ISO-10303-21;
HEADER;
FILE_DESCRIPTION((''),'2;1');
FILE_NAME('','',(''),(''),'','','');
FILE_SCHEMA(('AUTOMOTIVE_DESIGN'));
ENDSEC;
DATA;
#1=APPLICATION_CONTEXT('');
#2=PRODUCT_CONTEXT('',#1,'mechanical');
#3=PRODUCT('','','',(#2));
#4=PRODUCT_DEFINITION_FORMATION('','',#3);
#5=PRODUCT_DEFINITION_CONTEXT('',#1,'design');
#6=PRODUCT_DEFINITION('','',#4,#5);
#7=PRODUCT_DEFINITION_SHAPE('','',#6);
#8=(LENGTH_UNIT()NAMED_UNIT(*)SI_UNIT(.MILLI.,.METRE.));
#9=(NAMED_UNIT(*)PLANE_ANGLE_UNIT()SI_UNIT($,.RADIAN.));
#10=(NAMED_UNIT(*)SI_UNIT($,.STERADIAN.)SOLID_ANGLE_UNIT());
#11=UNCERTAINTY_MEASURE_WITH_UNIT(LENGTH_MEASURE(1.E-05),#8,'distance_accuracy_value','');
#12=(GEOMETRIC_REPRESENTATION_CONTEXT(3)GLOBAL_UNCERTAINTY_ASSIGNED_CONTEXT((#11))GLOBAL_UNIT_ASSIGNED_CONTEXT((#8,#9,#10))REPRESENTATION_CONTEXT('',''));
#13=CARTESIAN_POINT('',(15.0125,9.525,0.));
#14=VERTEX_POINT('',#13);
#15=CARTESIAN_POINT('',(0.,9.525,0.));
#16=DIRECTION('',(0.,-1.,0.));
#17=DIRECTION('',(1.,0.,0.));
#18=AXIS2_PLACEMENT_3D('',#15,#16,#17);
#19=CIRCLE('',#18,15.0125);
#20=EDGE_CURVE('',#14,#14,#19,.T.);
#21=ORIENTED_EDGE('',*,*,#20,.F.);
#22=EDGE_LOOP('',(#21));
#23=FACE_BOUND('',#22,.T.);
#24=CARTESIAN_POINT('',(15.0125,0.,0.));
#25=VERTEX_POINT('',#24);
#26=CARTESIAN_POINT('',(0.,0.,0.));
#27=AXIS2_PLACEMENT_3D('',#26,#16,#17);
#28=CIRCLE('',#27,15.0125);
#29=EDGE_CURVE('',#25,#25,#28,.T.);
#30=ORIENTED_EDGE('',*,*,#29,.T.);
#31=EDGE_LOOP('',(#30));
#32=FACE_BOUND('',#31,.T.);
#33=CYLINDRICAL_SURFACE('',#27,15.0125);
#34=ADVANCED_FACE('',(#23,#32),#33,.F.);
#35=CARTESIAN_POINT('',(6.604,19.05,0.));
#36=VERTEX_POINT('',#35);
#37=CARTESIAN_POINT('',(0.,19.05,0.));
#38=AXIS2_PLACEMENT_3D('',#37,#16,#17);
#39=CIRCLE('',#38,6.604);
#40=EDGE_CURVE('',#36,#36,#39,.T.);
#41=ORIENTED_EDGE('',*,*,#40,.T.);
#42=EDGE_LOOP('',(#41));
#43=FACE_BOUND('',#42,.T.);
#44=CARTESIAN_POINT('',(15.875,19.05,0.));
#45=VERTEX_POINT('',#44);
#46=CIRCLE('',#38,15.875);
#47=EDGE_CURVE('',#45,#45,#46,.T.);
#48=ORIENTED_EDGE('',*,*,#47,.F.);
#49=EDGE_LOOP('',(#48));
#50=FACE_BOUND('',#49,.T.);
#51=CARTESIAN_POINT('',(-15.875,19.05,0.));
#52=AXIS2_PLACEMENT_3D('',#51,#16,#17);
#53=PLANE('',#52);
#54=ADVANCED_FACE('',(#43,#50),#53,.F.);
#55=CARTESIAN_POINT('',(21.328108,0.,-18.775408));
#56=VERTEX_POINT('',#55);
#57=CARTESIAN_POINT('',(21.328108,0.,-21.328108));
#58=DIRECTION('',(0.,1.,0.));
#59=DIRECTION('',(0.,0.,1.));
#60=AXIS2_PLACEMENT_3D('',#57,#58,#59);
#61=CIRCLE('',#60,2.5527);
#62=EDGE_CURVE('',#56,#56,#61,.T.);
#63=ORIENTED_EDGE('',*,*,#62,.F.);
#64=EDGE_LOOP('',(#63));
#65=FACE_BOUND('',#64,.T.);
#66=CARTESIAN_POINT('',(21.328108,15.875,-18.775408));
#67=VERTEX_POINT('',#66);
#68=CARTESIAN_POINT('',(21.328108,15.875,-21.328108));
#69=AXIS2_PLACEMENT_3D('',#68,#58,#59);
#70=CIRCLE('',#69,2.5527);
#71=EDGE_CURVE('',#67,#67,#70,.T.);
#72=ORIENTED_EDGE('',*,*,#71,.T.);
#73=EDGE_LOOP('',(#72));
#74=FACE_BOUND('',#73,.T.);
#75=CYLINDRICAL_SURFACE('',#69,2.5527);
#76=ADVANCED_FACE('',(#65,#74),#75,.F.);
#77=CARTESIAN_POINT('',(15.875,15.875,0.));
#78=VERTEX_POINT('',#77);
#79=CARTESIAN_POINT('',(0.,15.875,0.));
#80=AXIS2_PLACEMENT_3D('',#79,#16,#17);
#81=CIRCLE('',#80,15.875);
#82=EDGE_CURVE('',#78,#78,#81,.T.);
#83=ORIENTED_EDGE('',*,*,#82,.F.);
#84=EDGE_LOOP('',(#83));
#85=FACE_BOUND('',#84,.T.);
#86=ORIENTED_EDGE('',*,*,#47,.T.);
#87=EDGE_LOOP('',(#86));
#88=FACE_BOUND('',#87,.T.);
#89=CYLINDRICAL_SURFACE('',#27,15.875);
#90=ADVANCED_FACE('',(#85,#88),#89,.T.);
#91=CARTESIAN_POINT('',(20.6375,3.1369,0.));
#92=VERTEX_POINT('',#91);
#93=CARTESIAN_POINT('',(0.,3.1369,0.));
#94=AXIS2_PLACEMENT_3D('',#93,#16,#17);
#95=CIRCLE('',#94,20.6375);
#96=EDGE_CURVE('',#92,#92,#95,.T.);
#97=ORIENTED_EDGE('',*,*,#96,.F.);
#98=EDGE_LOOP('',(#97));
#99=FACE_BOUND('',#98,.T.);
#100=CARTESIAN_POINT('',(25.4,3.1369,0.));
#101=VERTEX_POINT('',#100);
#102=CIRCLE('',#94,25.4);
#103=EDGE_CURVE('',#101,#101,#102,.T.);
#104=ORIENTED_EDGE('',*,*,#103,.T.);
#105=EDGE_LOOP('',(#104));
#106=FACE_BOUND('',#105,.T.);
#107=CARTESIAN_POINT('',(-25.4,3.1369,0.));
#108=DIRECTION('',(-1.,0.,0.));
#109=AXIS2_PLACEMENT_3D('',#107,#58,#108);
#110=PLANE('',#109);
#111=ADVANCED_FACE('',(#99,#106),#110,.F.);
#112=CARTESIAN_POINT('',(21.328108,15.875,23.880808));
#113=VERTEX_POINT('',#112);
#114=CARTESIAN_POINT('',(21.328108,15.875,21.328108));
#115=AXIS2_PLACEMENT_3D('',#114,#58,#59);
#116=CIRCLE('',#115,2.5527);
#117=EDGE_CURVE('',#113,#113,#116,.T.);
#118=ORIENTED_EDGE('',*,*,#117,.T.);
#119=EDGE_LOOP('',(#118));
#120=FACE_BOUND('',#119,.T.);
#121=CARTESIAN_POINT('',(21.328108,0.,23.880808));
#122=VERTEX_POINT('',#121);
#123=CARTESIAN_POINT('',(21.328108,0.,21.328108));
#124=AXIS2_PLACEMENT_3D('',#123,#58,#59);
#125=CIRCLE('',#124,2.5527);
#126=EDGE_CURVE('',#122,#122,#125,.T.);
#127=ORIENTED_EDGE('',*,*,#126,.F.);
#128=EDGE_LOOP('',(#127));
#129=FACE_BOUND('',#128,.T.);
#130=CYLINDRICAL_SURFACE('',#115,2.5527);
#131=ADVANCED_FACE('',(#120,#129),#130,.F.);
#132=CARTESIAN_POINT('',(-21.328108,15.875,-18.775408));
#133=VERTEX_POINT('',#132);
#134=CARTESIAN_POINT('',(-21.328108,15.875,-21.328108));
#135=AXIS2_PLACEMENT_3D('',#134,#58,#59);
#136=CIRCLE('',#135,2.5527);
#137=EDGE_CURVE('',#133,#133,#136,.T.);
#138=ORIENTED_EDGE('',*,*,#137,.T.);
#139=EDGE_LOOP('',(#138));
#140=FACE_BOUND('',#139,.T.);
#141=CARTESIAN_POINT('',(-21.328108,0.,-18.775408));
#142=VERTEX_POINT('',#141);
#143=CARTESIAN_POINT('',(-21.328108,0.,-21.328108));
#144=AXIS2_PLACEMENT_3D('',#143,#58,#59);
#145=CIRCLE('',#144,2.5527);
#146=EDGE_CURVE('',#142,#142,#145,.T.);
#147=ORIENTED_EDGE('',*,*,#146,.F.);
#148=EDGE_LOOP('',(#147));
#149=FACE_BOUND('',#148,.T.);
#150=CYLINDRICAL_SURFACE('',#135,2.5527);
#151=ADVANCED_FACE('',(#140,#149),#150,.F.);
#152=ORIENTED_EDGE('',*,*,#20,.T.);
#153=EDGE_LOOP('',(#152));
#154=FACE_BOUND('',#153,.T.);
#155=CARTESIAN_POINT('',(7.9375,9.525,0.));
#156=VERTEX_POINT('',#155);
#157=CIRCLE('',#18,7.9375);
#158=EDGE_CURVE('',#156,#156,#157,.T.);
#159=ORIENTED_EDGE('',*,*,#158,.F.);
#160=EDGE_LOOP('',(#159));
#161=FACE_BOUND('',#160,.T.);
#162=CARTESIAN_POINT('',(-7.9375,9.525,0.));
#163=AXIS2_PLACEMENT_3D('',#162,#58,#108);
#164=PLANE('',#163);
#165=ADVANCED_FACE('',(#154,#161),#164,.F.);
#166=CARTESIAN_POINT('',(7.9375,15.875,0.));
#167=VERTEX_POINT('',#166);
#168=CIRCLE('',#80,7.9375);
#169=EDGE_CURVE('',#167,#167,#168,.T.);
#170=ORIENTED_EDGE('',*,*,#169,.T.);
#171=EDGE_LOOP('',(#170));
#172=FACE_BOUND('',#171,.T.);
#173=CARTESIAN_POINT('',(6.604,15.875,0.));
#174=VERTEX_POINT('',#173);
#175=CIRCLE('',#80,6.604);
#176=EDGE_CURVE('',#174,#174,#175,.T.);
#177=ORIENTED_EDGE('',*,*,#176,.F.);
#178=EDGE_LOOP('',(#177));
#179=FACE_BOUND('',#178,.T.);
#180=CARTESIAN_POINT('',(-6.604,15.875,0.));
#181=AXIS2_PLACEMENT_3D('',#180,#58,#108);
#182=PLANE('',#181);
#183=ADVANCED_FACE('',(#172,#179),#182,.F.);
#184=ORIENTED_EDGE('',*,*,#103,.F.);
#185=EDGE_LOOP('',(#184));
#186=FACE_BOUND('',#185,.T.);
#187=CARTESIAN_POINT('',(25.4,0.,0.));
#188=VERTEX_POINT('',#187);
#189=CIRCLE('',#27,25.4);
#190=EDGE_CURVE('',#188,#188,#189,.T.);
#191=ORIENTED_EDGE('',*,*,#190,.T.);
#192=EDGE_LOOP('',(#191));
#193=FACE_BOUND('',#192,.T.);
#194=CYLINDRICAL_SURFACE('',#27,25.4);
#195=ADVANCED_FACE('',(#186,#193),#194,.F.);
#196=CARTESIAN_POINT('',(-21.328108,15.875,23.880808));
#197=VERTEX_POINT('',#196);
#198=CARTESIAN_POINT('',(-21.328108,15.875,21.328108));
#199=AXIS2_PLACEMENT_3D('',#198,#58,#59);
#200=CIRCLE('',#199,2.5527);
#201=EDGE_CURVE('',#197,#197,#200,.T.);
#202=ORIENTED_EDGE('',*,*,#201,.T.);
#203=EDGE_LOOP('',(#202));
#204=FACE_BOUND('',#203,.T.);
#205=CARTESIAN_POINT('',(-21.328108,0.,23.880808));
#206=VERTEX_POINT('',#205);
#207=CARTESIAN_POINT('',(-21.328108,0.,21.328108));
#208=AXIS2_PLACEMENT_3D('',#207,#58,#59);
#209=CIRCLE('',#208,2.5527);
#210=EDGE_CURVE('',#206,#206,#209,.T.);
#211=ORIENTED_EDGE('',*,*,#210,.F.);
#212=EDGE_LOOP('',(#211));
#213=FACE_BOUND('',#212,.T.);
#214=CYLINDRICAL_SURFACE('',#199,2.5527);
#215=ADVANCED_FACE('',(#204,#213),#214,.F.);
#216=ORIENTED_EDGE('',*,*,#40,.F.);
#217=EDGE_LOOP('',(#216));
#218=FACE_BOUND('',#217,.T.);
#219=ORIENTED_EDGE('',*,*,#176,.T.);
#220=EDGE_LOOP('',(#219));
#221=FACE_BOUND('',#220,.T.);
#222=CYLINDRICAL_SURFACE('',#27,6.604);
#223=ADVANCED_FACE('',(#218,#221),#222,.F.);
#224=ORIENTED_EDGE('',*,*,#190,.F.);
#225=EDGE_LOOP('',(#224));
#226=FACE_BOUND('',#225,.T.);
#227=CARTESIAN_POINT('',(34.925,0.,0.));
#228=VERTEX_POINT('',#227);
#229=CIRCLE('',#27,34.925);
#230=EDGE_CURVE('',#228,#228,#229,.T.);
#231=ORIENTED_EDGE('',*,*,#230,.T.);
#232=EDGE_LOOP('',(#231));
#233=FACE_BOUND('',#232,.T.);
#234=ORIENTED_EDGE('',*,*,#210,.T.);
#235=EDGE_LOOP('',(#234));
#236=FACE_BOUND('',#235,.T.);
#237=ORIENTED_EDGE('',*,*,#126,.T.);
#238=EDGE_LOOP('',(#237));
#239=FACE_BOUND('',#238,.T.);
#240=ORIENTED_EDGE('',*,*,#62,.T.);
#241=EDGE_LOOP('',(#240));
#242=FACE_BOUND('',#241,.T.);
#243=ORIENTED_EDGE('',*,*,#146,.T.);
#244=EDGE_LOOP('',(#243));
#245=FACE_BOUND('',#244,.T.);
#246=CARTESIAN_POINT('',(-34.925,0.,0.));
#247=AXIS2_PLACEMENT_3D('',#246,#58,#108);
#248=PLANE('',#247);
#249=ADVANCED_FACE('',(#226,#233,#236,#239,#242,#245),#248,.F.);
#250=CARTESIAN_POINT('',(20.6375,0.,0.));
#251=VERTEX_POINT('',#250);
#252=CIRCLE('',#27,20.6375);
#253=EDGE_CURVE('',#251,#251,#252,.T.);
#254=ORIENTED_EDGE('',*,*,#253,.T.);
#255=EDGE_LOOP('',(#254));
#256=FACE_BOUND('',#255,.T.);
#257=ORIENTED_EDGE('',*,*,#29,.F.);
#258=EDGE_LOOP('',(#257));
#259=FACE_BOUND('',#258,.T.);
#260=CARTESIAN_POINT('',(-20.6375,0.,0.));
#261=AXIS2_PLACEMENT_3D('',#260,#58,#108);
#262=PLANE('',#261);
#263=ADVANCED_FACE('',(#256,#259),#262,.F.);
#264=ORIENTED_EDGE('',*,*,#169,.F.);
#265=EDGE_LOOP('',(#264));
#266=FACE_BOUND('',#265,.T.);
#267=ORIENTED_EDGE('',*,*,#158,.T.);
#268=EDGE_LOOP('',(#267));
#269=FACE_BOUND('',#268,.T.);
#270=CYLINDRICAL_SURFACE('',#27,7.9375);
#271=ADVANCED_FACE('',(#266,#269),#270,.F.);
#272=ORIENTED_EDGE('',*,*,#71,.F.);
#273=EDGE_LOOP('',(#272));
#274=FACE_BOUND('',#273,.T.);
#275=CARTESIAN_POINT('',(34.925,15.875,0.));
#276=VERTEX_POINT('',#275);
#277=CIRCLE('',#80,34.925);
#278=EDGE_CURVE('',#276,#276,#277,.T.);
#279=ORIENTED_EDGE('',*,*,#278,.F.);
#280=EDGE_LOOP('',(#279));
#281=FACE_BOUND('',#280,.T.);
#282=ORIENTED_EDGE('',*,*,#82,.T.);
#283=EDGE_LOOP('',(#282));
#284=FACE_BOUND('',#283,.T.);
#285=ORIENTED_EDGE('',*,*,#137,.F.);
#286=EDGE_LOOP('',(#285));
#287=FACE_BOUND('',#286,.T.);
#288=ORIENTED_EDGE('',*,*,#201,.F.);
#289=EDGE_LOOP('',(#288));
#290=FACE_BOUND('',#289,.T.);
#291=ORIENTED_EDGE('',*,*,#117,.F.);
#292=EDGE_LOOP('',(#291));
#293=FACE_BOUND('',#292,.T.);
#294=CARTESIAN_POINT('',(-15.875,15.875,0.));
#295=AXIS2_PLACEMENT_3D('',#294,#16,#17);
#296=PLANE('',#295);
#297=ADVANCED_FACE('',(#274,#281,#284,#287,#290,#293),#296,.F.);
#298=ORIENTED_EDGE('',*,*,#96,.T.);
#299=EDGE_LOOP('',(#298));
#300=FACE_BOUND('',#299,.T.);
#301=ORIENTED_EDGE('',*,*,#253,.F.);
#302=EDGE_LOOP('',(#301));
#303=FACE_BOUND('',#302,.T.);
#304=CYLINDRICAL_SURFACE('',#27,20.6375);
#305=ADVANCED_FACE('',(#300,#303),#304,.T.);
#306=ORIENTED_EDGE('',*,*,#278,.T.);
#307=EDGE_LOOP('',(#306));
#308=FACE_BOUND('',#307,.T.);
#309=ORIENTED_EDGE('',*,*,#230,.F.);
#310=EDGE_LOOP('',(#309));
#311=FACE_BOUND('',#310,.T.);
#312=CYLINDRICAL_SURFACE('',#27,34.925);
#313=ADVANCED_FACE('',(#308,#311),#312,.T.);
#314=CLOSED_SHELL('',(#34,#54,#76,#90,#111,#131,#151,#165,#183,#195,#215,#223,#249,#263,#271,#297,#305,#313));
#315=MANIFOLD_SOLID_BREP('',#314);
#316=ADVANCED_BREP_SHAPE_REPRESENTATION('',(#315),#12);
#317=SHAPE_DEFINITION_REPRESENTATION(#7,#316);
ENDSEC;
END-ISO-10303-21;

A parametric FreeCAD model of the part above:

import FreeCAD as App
import Part
import Sketcher
Q = App.Units.Quantity

doc = App.newDocument("Part")
body = doc.addObject("PartDesign::Body", "Body")

sketch1 = body.newObject("Sketcher::SketchObject", "Sketch")
sketch1.AttachmentSupport = (doc.getObject("XY_Plane"), [""])
sketch1.MapMode = "FlatFace"
sketch1.addGeometry(Part.LineSegment(App.Vector(-6.6, 19.1, 0), App.Vector(-15.9, 19.1, 0)), False)
sketch1.addGeometry(Part.LineSegment(App.Vector(-15.9, 19.1, 0), App.Vector(-15.9, 15.9, 0)), False)
sketch1.addGeometry(Part.LineSegment(App.Vector(-15.9, 15.9, 0), App.Vector(-34.9, 15.9, 0)), False)
sketch1.addGeometry(Part.LineSegment(App.Vector(-34.9, 15.9, 0), App.Vector(-34.9, 0, 0)), False)
sketch1.addGeometry(Part.LineSegment(App.Vector(-34.9, 0, 0), App.Vector(-25.4, 0, 0)), False)
sketch1.addGeometry(Part.LineSegment(App.Vector(-25.4, 0, 0), App.Vector(-25.4, 3.1, 0)), False)
sketch1.addGeometry(Part.LineSegment(App.Vector(-25.4, 3.1, 0), App.Vector(-20.6, 3.1, 0)), False)
sketch1.addGeometry(Part.LineSegment(App.Vector(-20.6, 3.1, 0), App.Vector(-20.6, 0, 0)), False)
sketch1.addGeometry(Part.LineSegment(App.Vector(-20.6, 0, 0), App.Vector(-15, 0, 0)), False)
sketch1.addGeometry(Part.LineSegment(App.Vector(-15, 0, 0), App.Vector(-15, 9.5, 0)), False)
sketch1.addGeometry(Part.LineSegment(App.Vector(-15, 9.5, 0), App.Vector(-7.9, 9.5, 0)), False)
sketch1.addGeometry(Part.LineSegment(App.Vector(-7.9, 9.5, 0), App.Vector(-7.9, 15.9, 0)), False)
sketch1.addGeometry(Part.LineSegment(App.Vector(-7.9, 15.9, 0), App.Vector(-6.6, 15.9, 0)), False)
sketch1.addGeometry(Part.LineSegment(App.Vector(-6.6, 15.9, 0), App.Vector(-6.6, 19.1, 0)), False)
sketch1.addConstraint(Sketcher.Constraint("Coincident", 0, 2, 1, 1))
sketch1.addConstraint(Sketcher.Constraint("Coincident", 1, 2, 2, 1))
sketch1.addConstraint(Sketcher.Constraint("Coincident", 2, 2, 3, 1))
sketch1.addConstraint(Sketcher.Constraint("Coincident", 3, 2, 4, 1))
sketch1.addConstraint(Sketcher.Constraint("Coincident", 4, 2, 5, 1))
sketch1.addConstraint(Sketcher.Constraint("Coincident", 5, 2, 6, 1))
sketch1.addConstraint(Sketcher.Constraint("Coincident", 6, 2, 7, 1))
sketch1.addConstraint(Sketcher.Constraint("Coincident", 7, 2, 8, 1))
sketch1.addConstraint(Sketcher.Constraint("Coincident", 8, 2, 9, 1))
sketch1.addConstraint(Sketcher.Constraint("Coincident", 9, 2, 10, 1))
sketch1.addConstraint(Sketcher.Constraint("Coincident", 10, 2, 11, 1))
sketch1.addConstraint(Sketcher.Constraint("Coincident", 11, 2, 12, 1))
sketch1.addConstraint(Sketcher.Constraint("Coincident", 12, 2, 13, 1))
sketch1.addConstraint(Sketcher.Constraint("Coincident", 13, 2, 0, 1))
sketch1.addConstraint(Sketcher.Constraint("Horizontal", 0))
sketch1.addConstraint(Sketcher.Constraint("Vertical", 1))
sketch1.addConstraint(Sketcher.Constraint("Horizontal", 2))
sketch1.addConstraint(Sketcher.Constraint("Vertical", 3))
sketch1.addConstraint(Sketcher.Constraint("Horizontal", 4))
sketch1.addConstraint(Sketcher.Constraint("Vertical", 5))
sketch1.addConstraint(Sketcher.Constraint("Horizontal", 6))
sketch1.addConstraint(Sketcher.Constraint("Vertical", 7))
sketch1.addConstraint(Sketcher.Constraint("Horizontal", 8))
sketch1.addConstraint(Sketcher.Constraint("Vertical", 9))
sketch1.addConstraint(Sketcher.Constraint("Horizontal", 10))
sketch1.addConstraint(Sketcher.Constraint("Vertical", 11))
sketch1.addConstraint(Sketcher.Constraint("Horizontal", 12))
sketch1.addConstraint(Sketcher.Constraint("Vertical", 13))
sketch1.addConstraint(Sketcher.Constraint("PointOnObject", 3, 2, -1))
sketch1.addConstraint(Sketcher.Constraint("PointOnObject", 7, 2, -1))
sketch1.addConstraint(Sketcher.Constraint("Horizontal", 2, 2, 11, 2))
sketch1.addConstraint(Sketcher.Constraint("Equal", 4, 9))
sketch1.addConstraint(Sketcher.Constraint("DistanceX", 4, 2, -1, 1, Q("1 in")))
sketch1.addConstraint(Sketcher.Constraint("DistanceX", 2, 2, 2, 1, Q("0.75 in")))
sketch1.addConstraint(Sketcher.Constraint("DistanceY", 11, 1, 11, 2, Q("0.25 in")))
sketch1.addConstraint(Sketcher.Constraint("DistanceX", 6, 2, 10, 2, Q("0.5 in")))
sketch1.addConstraint(Sketcher.Constraint("DistanceX", 0, 2, 0, 1, Q("0.365 in")))
sketch1.addConstraint(Sketcher.Constraint("DistanceX", 4, 1, 4, 2, Q("0.375 in")))
sketch1.addConstraint(Sketcher.Constraint("DistanceX", 6, 1, 6, 2, Q("0.1875 in")))
sketch1.addConstraint(Sketcher.Constraint("DistanceY", 1, 2, 1, 1, Q("0.125 in")))
sketch1.addConstraint(Sketcher.Constraint("DistanceY", 5, 1, 5, 2, Q("0.1235 in")))
sketch1.addConstraint(Sketcher.Constraint("DistanceX", 8, 1, 8, 2, 5.625))
revolution = body.newObject("PartDesign::Revolution", "Revolution")
revolution.Profile = sketch1
revolution.ReferenceAxis = (sketch1, ["V_Axis"])
revolution.Angle = 360

sketch2 = body.newObject("Sketcher::SketchObject", "Sketch001")
sketch2.AttachmentSupport = (doc.getObject("XZ_Plane"), [""])
sketch2.MapMode = "FlatFace"
sketch2.AttachmentOffset = App.Placement(App.Vector(0, 0, -0.625 * 25.4), App.Rotation())
sketch2.addGeometry(Part.Circle(App.Vector(-21.3, -21.3, 0), App.Vector(0, 0, 1), 2.6), False)
sketch2.addGeometry(Part.Circle(App.Vector(21.3, -21.3, 0), App.Vector(0, 0, 1), 2.6), False)
sketch2.addGeometry(Part.Circle(App.Vector(21.3, 21.3, 0), App.Vector(0, 0, 1), 2.6), False)
sketch2.addGeometry(Part.Circle(App.Vector(-21.3, 21.3, 0), App.Vector(0, 0, 1), 2.6), False)
sketch2.addConstraint(Sketcher.Constraint("Equal", 0, 1))
sketch2.addConstraint(Sketcher.Constraint("Equal", 1, 2))
sketch2.addConstraint(Sketcher.Constraint("Equal", 2, 3))
sketch2.addConstraint(Sketcher.Constraint("Symmetric", 0, 3, 2, 3, -1, 1))
sketch2.addConstraint(Sketcher.Constraint("Symmetric", 1, 3, 3, 3, -1, 1))
sketch2.addConstraint(Sketcher.Constraint("Symmetric", 0, 3, 1, 3, -2))
sketch2.addConstraint(Sketcher.Constraint("Diameter", 0, Q("0.201 in")))
sketch2.addConstraint(Sketcher.Constraint("DistanceX", 0, 3, -1, 1, 21.328108))
sketch2.addConstraint(Sketcher.Constraint("DistanceY", 0, 3, -1, 1, 21.328108))
doc.recompute()
hole = body.newObject("PartDesign::Hole", "Hole")
hole.Profile = sketch2
hole.ThreadType = "None"
hole.Diameter = Q("0.201 in")
hole.DepthType = "ThroughAll"
hole.Reversed = True

doc.recompute()
